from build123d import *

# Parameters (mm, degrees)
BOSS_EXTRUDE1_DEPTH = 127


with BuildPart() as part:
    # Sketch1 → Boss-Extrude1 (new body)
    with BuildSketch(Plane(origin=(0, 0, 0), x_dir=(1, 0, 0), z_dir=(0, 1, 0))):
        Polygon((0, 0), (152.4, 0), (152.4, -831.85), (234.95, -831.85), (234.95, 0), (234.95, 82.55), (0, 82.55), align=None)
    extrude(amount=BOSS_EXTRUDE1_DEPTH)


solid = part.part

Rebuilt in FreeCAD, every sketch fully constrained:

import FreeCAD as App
import Part
import Sketcher
from FreeCAD import Vector
Q = App.Units.Quantity


def add_polygon(sketch, points):
    """Adds a closed chain of lines whose ends are joined by coincident constraints."""
    first, n = sketch.GeometryCount, len(points)
    for a, b in zip(points, points[1:] + points[:1]):
        sketch.addGeometry(Part.LineSegment(App.Vector(*a, 0), App.Vector(*b, 0)), False)
    for i in range(n):
        sketch.addConstraint(Sketcher.Constraint("Coincident", first + i, 2, first + (i + 1) % n, 1))

doc = App.newDocument("Part")
body = doc.addObject("PartDesign::Body", "Body")

sketch1 = body.newObject("Sketcher::SketchObject", "Sketch")
sketch1.AttachmentSupport = (doc.getObject("XZ_Plane"), [""])
sketch1.MapMode = "FlatFace"
add_polygon(sketch1, [(0, 0), (152, 0), (152, 832), (235, 832), (235, -83), (0, -83)])
sketch1.addConstraint([
    Sketcher.Constraint("Horizontal", 0),
    Sketcher.Constraint("Vertical", 1),
    Sketcher.Constraint("Horizontal", 2),
    Sketcher.Constraint("Vertical", 3),
    Sketcher.Constraint("Horizontal", 4),
    Sketcher.Constraint("Vertical", 5),
    Sketcher.Constraint("Coincident", 5, 2, -1, 1),
    Sketcher.Constraint("Equal", 2, 5),
    Sketcher.Constraint("DistanceX", 0, 1, 0, 2, Q("6 in")),
    Sketcher.Constraint("DistanceY", 3, 2, 3, 1, Q("36 in")),
    Sketcher.Constraint("DistanceX", 2, 1, 2, 2, Q("3.25 in")),
])
pad1 = body.newObject("PartDesign::Pad", "Pad")
pad1.Profile = sketch1
pad1.Length = Q("5 in")
pad1.Reversed = True

doc.recompute()
